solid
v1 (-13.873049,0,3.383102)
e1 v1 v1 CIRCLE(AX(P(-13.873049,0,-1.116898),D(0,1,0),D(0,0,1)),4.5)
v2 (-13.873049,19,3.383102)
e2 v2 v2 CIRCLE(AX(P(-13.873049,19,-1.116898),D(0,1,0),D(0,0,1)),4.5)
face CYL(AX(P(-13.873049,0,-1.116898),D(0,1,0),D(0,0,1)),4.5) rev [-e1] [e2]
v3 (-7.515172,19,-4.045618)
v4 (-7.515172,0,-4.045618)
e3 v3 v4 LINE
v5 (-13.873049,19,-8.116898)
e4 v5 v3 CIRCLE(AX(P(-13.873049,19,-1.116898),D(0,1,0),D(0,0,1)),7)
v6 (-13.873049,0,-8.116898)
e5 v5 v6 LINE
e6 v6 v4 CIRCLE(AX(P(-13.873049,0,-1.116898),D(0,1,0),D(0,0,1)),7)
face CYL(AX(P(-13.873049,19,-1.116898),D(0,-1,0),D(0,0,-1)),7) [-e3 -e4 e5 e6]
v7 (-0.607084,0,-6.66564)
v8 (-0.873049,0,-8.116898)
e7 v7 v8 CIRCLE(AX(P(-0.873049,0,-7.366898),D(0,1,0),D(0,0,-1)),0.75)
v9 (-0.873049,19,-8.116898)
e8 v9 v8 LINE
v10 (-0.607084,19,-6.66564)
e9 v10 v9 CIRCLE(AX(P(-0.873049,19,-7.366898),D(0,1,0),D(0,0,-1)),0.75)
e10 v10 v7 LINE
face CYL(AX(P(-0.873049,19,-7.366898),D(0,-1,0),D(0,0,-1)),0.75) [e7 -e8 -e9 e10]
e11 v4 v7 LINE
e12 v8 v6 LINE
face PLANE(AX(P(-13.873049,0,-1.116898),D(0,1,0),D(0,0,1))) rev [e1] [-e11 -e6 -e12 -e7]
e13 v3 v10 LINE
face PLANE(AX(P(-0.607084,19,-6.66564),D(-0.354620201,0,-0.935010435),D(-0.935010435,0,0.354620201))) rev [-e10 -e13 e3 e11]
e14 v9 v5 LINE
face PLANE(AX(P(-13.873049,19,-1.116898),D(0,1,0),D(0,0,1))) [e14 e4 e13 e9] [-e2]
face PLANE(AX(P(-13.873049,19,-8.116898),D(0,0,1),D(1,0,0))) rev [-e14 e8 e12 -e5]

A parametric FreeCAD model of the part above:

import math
import FreeCAD as App
import Part
import Sketcher

V = App.Vector
Q = App.Units.Quantity

doc = App.newDocument("Part")
body = doc.addObject("PartDesign::Body", "Body")

sketch1 = body.newObject("Sketcher::SketchObject", "Sketch")
sketch1.AttachmentSupport = (doc.getObject("XZ_Plane"), [""])
sketch1.MapMode = "FlatFace"
sketch1.addGeometry(Part.LineSegment(V(-0.9, -8.1, 0), V(-13.9, -8.1, 0)), False)
sketch1.addGeometry(Part.ArcOfCircle(Part.Circle(V(-13.9, -1.1, 0), V(0, 0, 1), 7), math.radians(-25), math.radians(270)), False)
sketch1.addGeometry(Part.LineSegment(V(-7.5, -4, 0), V(-0.6, -6.7, 0)), False)
sketch1.addGeometry(Part.ArcOfCircle(Part.Circle(V(-0.9, -7.4, 0), V(0, 0, 1), 0.8), math.radians(-90), math.radians(69)), False)
sketch1.addConstraint(Sketcher.Constraint("Tangent", 0, 2, 1, 2))
sketch1.addConstraint(Sketcher.Constraint("Coincident", 1, 1, 2, 1))
sketch1.addConstraint(Sketcher.Constraint("Tangent", 2, 2, 3, 2))
sketch1.addConstraint(Sketcher.Constraint("Tangent", 3, 1, 0, 1))
sketch1.addConstraint(Sketcher.Constraint("Horizontal", 0))
sketch1.addConstraint(Sketcher.Constraint("Radius", 1, Q("7 mm")))
sketch1.addConstraint(Sketcher.Constraint("DistanceX", 0, 2, 0, 1, Q("13 mm")))
sketch1.addConstraint(Sketcher.Constraint("Radius", 3, Q("0.75 mm")))
sketch1.addConstraint(Sketcher.Constraint("DistanceY", 1, 3, -1, 1, Q("1.116898 mm")))
sketch1.addConstraint(Sketcher.Constraint("DistanceX", 1, 3, -1, 1, Q("13.873049 mm")))
sketch1.addConstraint(Sketcher.Constraint("DistanceY", 1, 1, -1, 1, Q("4.045618 mm")))
pad1 = body.newObject("PartDesign::Pad", "Pad")
pad1.Profile = sketch1
pad1.Length = 19
pad1.Reversed = True

sketch2 = body.newObject("Sketcher::SketchObject", "Sketch001")
sketch2.AttachmentSupport = (doc.getObject("XZ_Plane"), [""])
sketch2.MapMode = "FlatFace"
sketch2.AttachmentOffset = App.Placement(V(0, 0, -19), App.Rotation())
sketch2.addGeometry(Part.Circle(V(-13.9, -1.1, 0), V(0, 0, 1), 4.5), False)
sketch2.addConstraint(Sketcher.Constraint("Diameter", 0, Q("9 mm")))
sketch2.addConstraint(Sketcher.Constraint("DistanceY", 0, 3, -1, 1, Q("1.116898 mm")))
sketch2.addConstraint(Sketcher.Constraint("DistanceX", 0, 3, -1, 1, Q("13.873049 mm")))
pocket1 = body.newObject("PartDesign::Pocket", "Pocket")
pocket1.Profile = sketch2
pocket1.Length = 19
pocket1.Reversed = True

doc.recompute()
